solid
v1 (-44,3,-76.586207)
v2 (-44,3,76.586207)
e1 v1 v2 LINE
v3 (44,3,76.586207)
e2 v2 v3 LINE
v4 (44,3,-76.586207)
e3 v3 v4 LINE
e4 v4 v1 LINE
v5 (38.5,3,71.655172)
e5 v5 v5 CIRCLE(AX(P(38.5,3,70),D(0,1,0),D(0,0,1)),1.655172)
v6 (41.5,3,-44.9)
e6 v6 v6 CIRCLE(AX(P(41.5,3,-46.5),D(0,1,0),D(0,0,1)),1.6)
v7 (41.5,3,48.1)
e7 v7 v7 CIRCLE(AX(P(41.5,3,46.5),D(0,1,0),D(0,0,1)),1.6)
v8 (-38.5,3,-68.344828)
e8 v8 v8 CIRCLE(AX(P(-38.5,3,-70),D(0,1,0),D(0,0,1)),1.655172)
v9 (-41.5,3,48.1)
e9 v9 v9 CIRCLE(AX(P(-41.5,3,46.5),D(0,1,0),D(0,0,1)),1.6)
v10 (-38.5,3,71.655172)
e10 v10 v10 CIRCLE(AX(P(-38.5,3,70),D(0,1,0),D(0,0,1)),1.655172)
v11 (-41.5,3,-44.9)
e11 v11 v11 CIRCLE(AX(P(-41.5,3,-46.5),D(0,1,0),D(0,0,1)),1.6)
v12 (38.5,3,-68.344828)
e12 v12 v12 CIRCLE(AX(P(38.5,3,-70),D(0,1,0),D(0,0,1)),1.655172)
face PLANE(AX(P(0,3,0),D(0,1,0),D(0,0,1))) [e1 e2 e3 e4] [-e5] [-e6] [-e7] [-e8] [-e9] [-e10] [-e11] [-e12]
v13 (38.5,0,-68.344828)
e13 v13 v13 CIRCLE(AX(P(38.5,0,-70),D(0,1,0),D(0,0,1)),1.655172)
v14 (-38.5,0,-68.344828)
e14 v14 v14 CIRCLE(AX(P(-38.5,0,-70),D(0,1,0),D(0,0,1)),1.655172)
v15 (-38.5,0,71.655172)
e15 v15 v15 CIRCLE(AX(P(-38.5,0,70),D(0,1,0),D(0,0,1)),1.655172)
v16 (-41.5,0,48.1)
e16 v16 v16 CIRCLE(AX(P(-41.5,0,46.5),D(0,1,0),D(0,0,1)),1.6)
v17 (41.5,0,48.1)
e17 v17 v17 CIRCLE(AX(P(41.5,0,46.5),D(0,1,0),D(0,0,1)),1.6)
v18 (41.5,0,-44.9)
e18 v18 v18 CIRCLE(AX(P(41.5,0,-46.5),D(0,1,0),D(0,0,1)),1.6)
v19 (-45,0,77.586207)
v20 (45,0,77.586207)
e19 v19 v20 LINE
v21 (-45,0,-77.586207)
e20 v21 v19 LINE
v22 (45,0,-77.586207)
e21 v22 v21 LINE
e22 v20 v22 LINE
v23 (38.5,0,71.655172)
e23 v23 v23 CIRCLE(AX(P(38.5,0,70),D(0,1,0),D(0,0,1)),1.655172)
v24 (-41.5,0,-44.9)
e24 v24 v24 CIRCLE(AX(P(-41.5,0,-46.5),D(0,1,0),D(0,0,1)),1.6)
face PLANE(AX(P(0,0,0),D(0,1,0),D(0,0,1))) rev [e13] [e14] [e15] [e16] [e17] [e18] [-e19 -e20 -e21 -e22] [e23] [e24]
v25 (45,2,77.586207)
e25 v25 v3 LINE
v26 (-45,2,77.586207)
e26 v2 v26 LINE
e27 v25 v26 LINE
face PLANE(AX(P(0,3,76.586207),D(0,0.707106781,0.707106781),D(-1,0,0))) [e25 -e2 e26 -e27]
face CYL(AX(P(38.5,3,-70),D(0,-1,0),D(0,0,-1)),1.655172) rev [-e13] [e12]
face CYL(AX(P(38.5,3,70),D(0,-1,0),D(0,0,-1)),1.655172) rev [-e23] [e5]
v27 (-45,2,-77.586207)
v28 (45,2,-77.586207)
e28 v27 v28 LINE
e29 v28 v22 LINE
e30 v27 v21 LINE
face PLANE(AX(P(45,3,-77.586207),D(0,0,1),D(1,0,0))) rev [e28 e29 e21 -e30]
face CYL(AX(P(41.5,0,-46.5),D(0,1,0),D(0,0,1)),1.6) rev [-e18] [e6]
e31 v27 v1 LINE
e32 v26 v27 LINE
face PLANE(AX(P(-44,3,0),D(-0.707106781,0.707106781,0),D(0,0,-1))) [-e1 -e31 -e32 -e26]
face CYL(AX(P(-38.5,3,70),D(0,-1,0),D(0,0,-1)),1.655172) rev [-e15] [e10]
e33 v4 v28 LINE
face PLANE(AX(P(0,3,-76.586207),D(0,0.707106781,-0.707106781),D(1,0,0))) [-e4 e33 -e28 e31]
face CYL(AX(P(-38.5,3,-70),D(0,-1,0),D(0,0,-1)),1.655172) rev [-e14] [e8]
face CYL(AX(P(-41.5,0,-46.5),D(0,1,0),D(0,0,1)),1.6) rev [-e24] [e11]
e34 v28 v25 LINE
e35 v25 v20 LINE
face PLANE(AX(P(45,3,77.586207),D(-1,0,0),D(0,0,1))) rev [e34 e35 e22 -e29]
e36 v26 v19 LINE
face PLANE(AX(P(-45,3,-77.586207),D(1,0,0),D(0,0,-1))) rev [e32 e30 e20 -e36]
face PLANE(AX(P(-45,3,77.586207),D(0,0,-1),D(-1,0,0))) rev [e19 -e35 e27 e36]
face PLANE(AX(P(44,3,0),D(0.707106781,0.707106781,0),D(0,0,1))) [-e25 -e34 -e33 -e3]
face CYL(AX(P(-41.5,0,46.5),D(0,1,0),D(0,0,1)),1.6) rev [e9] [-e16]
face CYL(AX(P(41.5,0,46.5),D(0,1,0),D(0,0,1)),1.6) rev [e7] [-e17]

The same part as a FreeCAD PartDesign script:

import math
import FreeCAD as App
import Part
import Sketcher
from FreeCAD import Vector


def edges_at(feature, points):
    """Names of the edges that pass closest to the given points."""
    edges = feature.Shape.Edges
    near = lambda p: min(range(len(edges)), key=lambda i: edges[i].distToShape(Part.Vertex(*p))[0])
    return sorted({f"Edge{near(p) + 1}" for p in points})


def add_polygon(sketch, points):
    """Adds a closed chain of lines whose ends are joined by coincident constraints."""
    first, n = sketch.GeometryCount, len(points)
    for a, b in zip(points, points[1:] + points[:1]):
        sketch.addGeometry(Part.LineSegment(App.Vector(*a, 0), App.Vector(*b, 0)), False)
    for i in range(n):
        sketch.addConstraint(Sketcher.Constraint("Coincident", first + i, 2, first + (i + 1) % n, 1))

doc = App.newDocument("Part")
params = doc.addObject("Spreadsheet::Sheet", "Params")
for row, (alias, value) in enumerate([
    ("sketch1_width", "90 mm"),
    ("pad1_length", "3 mm"),
    ("sketch2_radius", "1.6 mm"),
    ("chamfer_size", "1 mm"),
    ("chamfer2_size", "1 mm"),
], start=1):
    params.set(f"A{row}", alias)
    params.set(f"B{row}", "=" + value)
    params.setAlias(f"B{row}", alias)

body = doc.addObject("PartDesign::Body", "Body")

sketch1 = body.newObject("Sketcher::SketchObject", "Sketch")
sketch1.AttachmentSupport = (doc.getObject("XZ_Plane"), [""])
sketch1.MapMode = "FlatFace"
add_polygon(sketch1, [(-45, -77.6), (-45, 77.6), (45, 77.6), (45, -77.6)])
sketch1.addGeometry(Part.Circle(Vector(-38.5, 70, 0), Vector(0, 0, 1), 1.7), False)
sketch1.addGeometry(Part.Circle(Vector(38.5, 70, 0), Vector(0, 0, 1), 1.7), False)
sketch1.addGeometry(Part.Circle(Vector(-38.5, -70, 0), Vector(0, 0, 1), 1.7), False)
sketch1.addGeometry(Part.Circle(Vector(38.5, -70, 0), Vector(0, 0, 1), 1.7), False)
sketch1.addConstraint(Sketcher.Constraint("Vertical", 0))
sketch1.addConstraint(Sketcher.Constraint("Horizontal", 1))
sketch1.addConstraint(Sketcher.Constraint("Vertical", 2))
sketch1.addConstraint(Sketcher.Constraint("Horizontal", 3))
sketch1.addConstraint(Sketcher.Constraint("Equal", 4, 5))
sketch1.addConstraint(Sketcher.Constraint("Equal", 5, 6))
sketch1.addConstraint(Sketcher.Constraint("Equal", 6, 7))
sketch1.addConstraint(Sketcher.Constraint("Symmetric", 5, 3, 6, 3, -1, 1))
sketch1.addConstraint(Sketcher.Constraint("Symmetric", 4, 3, 7, 3, -1, 1))
sketch1.addConstraint(Sketcher.Constraint("Symmetric", 0, 2, 2, 2, -1, 1))
sketch1.addConstraint(Sketcher.Constraint("Symmetric", 4, 3, 5, 3, -2))
sketch1.addConstraint(Sketcher.Constraint("DistanceX", 1, 1, 1, 2, 90.0))
sketch1.addConstraint(Sketcher.Constraint("DistanceY", -1, 1, 4, 3, 70.0))
sketch1.addConstraint(Sketcher.Constraint("DistanceX", 4, 3, 5, 3, 77.0))
sketch1.addConstraint(Sketcher.Constraint("Diameter", 4, 3.310345))
sketch1.addConstraint(Sketcher.Constraint("DistanceY", 0, 1, 0, 2, 155.172414))
sketch1.setExpression("Constraints[15]", "Params.sketch1_width")
pad1 = body.newObject("PartDesign::Pad", "Pad")
pad1.Profile = sketch1
pad1.setExpression("Length", "Params.pad1_length")
pad1.Reversed = True

sketch2 = body.newObject("Sketcher::SketchObject", "Sketch001")
sketch2.AttachmentSupport = (doc.getObject("XZ_Plane"), [""])
sketch2.MapMode = "FlatFace"
sketch2.AttachmentOffset = App.Placement(Vector(0, 0, -3), App.Rotation())
sketch2.addGeometry(Part.ArcOfCircle(Part.Circle(Vector(-41.5, -46.5, 0), Vector(0, 0, 1), 1.6), math.radians(90), math.radians(360)), False)
sketch2.addGeometry(Part.ArcOfCircle(Part.Circle(Vector(-41.5, -46.5, 0), Vector(0, 0, 1), 1.6), math.radians(0), math.radians(90)), False)
sketch2.addGeometry(Part.ArcOfCircle(Part.Circle(Vector(41.5, -46.5, 0), Vector(0, 0, 1), 1.6), math.radians(90), math.radians(180)), False)
sketch2.addGeometry(Part.ArcOfCircle(Part.Circle(Vector(41.5, -46.5, 0), Vector(0, 0, 1), 1.6), math.radians(0), math.radians(90)), False)
sketch2.addGeometry(Part.ArcOfCircle(Part.Circle(Vector(41.5, -46.5, 0), Vector(0, 0, 1), 1.6), math.radians(180), math.radians(360)), False)
sketch2.addGeometry(Part.ArcOfCircle(Part.Circle(Vector(41.5, 46.5, 0), Vector(0, 0, 1), 1.6), math.radians(180), math.radians(270)), False)
sketch2.addGeometry(Part.ArcOfCircle(Part.Circle(Vector(41.5, 46.5, 0), Vector(0, 0, 1), 1.6), math.radians(0), math.radians(180)), False)
sketch2.addGeometry(Part.ArcOfCircle(Part.Circle(Vector(41.5, 46.5, 0), Vector(0, 0, 1), 1.6), math.radians(-90), math.radians(0)), False)
sketch2.addGeometry(Part.ArcOfCircle(Part.Circle(Vector(-41.5, 46.5, 0), Vector(0, 0, 1), 1.6), math.radians(-90), math.radians(0)), False)
sketch2.addGeometry(Part.ArcOfCircle(Part.Circle(Vector(-41.5, 46.5, 0), Vector(0, 0, 1), 1.6), math.radians(0), math.radians(270)), False)
sketch2.addConstraint(Sketcher.Constraint("Tangent", 0, 1, 1, 2))
sketch2.addConstraint(Sketcher.Constraint("Coincident", 1, 1, 0, 2))
sketch2.addConstraint(Sketcher.Constraint("Tangent", 2, 1, 3, 2))
sketch2.addConstraint(Sketcher.Constraint("Tangent", 3, 1, 4, 2))
sketch2.addConstraint(Sketcher.Constraint("Tangent", 4, 1, 2, 2))
sketch2.addConstraint(Sketcher.Constraint("Tangent", 5, 1, 6, 2))
sketch2.addConstraint(Sketcher.Constraint("Tangent", 6, 1, 7, 2))
sketch2.addConstraint(Sketcher.Constraint("Tangent", 7, 1, 5, 2))
sketch2.addConstraint(Sketcher.Constraint("Tangent", 8, 1, 9, 2))
sketch2.addConstraint(Sketcher.Constraint("Coincident", 9, 1, 8, 2))
sketch2.addConstraint(Sketcher.Constraint("Equal", 1, 2))
sketch2.addConstraint(Sketcher.Constraint("Equal", 4, 5))
sketch2.addConstraint(Sketcher.Constraint("Equal", 7, 8))
sketch2.addConstraint(Sketcher.Constraint("Symmetric", 0, 3, 5, 3, -1, 1))
sketch2.addConstraint(Sketcher.Constraint("Symmetric", 2, 3, 8, 3, -1, 1))
sketch2.addConstraint(Sketcher.Constraint("Symmetric", 0, 3, 2, 3, -2))
sketch2.addConstraint(Sketcher.Constraint("Horizontal", 4, 3, 1, 1))
sketch2.addConstraint(Sketcher.Constraint("Horizontal", 1, 1, 3, 1))
sketch2.addConstraint(Sketcher.Constraint("Horizontal", 3, 1, 4, 1))
sketch2.addConstraint(Sketcher.Constraint("Horizontal", 9, 3, 5, 1))
sketch2.addConstraint(Sketcher.Constraint("Horizontal", 5, 1, 6, 1))
sketch2.addConstraint(Sketcher.Constraint("Horizontal", 6, 1, 9, 1))
sketch2.addConstraint(Sketcher.Constraint("Vertical", 9, 3, 0, 1))
sketch2.addConstraint(Sketcher.Constraint("Vertical", 7, 3, 2, 1))
sketch2.addConstraint(Sketcher.Constraint("Vertical", 2, 1, 7, 1))
sketch2.addConstraint(Sketcher.Constraint("Vertical", 0, 1, 8, 1))
sketch2.addConstraint(Sketcher.Constraint("Radius", 0, 1.6))
sketch2.addConstraint(Sketcher.Constraint("DistanceX", 0, 3, 2, 3, 83.0))
sketch2.addConstraint(Sketcher.Constraint("DistanceY", 2, 3, 5, 3, 93.0))
sketch2.setExpression("Constraints[26]", "Params.sketch2_radius")
pocket1 = body.newObject("PartDesign::Pocket", "Pocket")
pocket1.Profile = sketch2
pocket1.Type = "ThroughAll"
pocket1.Reversed = True
doc.recompute()

chamfer = body.newObject("PartDesign::Chamfer", "Chamfer")
chamfer.Base = (pocket1, edges_at(pocket1, [(0, 3, 77.586), (0, 3, -77.586)]))
chamfer.setExpression("Size", "Params.chamfer_size")
doc.recompute()

chamfer2 = body.newObject("PartDesign::Chamfer", "Chamfer001")
chamfer2.Base = (chamfer, edges_at(chamfer, [(45, 3, 0), (-45, 3, 0)]))
chamfer2.setExpression("Size", "Params.chamfer2_size")

doc.recompute()
